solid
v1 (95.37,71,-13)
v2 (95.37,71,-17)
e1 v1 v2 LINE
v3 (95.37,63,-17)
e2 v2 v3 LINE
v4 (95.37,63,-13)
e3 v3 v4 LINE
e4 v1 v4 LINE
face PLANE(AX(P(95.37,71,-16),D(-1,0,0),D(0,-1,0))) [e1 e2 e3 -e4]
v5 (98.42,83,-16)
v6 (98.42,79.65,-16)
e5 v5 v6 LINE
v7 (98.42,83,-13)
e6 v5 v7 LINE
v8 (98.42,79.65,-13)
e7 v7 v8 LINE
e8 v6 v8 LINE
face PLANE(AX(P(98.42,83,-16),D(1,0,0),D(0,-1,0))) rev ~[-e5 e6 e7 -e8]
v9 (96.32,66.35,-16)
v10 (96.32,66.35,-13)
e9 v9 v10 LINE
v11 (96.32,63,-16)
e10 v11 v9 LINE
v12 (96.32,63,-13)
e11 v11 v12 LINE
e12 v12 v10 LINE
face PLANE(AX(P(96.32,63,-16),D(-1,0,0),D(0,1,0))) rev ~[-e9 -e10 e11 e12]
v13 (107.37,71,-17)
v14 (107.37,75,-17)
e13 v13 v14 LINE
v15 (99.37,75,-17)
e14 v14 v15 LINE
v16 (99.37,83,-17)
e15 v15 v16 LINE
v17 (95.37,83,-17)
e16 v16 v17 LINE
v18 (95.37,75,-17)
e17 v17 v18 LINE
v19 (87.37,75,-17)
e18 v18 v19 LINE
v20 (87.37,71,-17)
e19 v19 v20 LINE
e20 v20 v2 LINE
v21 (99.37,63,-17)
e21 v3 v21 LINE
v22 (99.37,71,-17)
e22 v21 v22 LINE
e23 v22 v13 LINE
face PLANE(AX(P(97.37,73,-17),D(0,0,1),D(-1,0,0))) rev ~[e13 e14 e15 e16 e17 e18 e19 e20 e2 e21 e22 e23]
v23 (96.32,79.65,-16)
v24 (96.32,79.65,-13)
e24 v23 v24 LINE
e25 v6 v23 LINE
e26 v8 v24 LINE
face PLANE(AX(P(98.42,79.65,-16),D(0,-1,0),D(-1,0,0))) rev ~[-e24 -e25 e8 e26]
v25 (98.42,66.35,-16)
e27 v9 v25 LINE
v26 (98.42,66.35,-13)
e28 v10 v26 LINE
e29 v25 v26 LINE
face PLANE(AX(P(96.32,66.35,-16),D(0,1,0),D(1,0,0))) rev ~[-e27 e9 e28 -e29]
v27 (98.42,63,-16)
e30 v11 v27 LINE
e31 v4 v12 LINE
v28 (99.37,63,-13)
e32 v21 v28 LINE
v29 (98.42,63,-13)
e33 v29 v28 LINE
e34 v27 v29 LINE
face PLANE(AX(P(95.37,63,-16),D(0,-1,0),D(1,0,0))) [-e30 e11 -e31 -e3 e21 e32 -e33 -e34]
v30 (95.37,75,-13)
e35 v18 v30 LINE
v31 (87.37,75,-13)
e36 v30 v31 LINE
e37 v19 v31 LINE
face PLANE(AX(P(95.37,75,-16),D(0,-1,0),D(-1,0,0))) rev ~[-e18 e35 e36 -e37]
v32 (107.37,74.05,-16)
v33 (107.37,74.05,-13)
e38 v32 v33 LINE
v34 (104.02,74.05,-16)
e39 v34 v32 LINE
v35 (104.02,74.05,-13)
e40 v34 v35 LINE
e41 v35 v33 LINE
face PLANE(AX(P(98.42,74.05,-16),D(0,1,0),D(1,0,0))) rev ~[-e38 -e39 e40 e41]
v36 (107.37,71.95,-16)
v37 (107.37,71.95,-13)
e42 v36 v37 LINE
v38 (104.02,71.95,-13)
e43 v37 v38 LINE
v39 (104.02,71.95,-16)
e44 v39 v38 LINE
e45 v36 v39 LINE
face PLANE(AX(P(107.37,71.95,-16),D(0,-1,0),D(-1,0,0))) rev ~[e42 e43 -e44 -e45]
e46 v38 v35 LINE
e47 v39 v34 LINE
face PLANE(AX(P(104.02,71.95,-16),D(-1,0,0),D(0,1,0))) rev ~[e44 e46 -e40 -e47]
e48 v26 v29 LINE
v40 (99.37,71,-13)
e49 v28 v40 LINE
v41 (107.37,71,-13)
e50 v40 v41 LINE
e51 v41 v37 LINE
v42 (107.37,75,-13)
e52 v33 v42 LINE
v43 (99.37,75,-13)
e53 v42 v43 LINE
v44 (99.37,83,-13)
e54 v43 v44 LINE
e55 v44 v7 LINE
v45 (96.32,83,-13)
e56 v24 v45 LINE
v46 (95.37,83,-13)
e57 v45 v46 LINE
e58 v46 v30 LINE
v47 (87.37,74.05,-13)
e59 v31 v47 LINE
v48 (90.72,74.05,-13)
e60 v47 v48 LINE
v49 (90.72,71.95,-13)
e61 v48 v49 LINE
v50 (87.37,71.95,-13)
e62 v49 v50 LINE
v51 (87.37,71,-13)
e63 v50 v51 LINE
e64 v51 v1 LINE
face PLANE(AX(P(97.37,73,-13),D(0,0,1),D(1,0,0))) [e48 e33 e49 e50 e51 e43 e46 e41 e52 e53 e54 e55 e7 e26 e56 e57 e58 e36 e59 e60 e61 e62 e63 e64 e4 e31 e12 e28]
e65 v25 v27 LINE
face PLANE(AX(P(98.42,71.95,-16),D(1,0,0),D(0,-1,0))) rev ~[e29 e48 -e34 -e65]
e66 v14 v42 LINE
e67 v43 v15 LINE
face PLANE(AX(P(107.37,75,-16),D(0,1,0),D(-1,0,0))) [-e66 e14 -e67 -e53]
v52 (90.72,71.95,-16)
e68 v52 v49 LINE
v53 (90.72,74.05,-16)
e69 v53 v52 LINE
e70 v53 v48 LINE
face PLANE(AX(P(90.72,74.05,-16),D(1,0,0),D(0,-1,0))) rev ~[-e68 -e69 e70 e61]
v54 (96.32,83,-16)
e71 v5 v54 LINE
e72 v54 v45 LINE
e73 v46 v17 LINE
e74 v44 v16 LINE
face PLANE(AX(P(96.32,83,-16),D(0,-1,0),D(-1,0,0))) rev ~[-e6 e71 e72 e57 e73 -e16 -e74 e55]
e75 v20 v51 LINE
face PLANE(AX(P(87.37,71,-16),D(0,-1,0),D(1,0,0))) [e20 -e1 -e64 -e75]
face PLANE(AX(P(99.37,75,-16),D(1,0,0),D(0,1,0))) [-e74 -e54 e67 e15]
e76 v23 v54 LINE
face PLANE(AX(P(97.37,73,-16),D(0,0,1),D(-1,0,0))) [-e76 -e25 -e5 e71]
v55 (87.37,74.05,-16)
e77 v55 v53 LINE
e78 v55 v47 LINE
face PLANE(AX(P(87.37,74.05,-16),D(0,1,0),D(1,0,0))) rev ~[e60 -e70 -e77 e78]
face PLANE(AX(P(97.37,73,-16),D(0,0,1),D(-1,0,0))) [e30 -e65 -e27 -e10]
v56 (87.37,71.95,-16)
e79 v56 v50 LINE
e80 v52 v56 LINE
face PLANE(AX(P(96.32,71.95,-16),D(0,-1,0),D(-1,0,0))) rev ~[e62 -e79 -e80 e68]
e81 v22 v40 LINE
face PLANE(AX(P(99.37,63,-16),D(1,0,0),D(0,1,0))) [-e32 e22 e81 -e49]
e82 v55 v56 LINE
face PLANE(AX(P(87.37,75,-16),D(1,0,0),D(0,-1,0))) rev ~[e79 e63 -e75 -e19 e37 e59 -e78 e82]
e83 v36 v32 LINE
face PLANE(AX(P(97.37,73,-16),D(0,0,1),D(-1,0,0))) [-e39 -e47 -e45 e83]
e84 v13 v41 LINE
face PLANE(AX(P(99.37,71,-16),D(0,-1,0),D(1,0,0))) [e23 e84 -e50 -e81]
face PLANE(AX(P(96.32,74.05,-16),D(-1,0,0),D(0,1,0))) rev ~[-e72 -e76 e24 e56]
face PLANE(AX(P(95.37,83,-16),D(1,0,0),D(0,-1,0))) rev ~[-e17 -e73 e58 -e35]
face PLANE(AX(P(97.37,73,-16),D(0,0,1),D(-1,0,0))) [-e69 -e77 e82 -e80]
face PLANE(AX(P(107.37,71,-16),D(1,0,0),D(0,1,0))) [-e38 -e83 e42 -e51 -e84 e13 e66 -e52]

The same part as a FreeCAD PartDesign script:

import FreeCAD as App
import Part
import Sketcher

V = App.Vector
Q = App.Units.Quantity

doc = App.newDocument("Part")
body = doc.addObject("PartDesign::Body", "Body")

sketch1 = doc.addObject("Sketcher::SketchObject", "Sketch")
body.addObject(sketch1)
sketch1.AttachmentSupport = (doc.XY_Plane, [""])
sketch1.MapMode = "FlatFace"
sketch1.AttachmentOffset = App.Placement(V(0, 0, -28), App.Rotation())
sketch1.addGeometry([
    Part.LineSegment(V(-2, 10, 0), V(-2, 2, 0)),
    Part.LineSegment(V(-2, 2, 0), V(-10, 2, 0)),
    Part.LineSegment(V(-10, 2, 0), V(-10, -2, 0)),
    Part.LineSegment(V(-10, -2, 0), V(-2, -2, 0)),
    Part.LineSegment(V(-2, -2, 0), V(-2, -10, 0)),
    Part.LineSegment(V(-2, -10, 0), V(2, -10, 0)),
    Part.LineSegment(V(2, -10, 0), V(2, -2, 0)),
    Part.LineSegment(V(2, -2, 0), V(10, -2, 0)),
    Part.LineSegment(V(10, -2, 0), V(10, 2, 0)),
    Part.LineSegment(V(10, 2, 0), V(2, 2, 0)),
    Part.LineSegment(V(2, 2, 0), V(2, 10, 0)),
    Part.LineSegment(V(2, 10, 0), V(-2, 10, 0)),
], False)
sketch1.addConstraint([
    Sketcher.Constraint("Coincident", 0, 2, 1, 1),
    Sketcher.Constraint("Coincident", 1, 2, 2, 1),
    Sketcher.Constraint("Coincident", 2, 2, 3, 1),
    Sketcher.Constraint("Coincident", 3, 2, 4, 1),
    Sketcher.Constraint("Coincident", 4, 2, 5, 1),
    Sketcher.Constraint("Coincident", 5, 2, 6, 1),
    Sketcher.Constraint("Coincident", 6, 2, 7, 1),
    Sketcher.Constraint("Coincident", 7, 2, 8, 1),
    Sketcher.Constraint("Coincident", 8, 2, 9, 1),
    Sketcher.Constraint("Coincident", 9, 2, 10, 1),
    Sketcher.Constraint("Coincident", 10, 2, 11, 1),
    Sketcher.Constraint("Coincident", 11, 2, 0, 1),
    Sketcher.Constraint("Vertical", 0),
    Sketcher.Constraint("Horizontal", 1),
    Sketcher.Constraint("Vertical", 2),
    Sketcher.Constraint("Horizontal", 3),
    Sketcher.Constraint("Vertical", 4),
    Sketcher.Constraint("Horizontal", 5),
    Sketcher.Constraint("Vertical", 6),
    Sketcher.Constraint("Horizontal", 7),
    Sketcher.Constraint("Vertical", 8),
    Sketcher.Constraint("Horizontal", 9),
    Sketcher.Constraint("Vertical", 10),
    Sketcher.Constraint("Horizontal", 11),
    Sketcher.Constraint("Symmetric", 0, 2, 6, 2, -1, 1),
    Sketcher.Constraint("Symmetric", 2, 2, 8, 2, -1, 1),
    Sketcher.Constraint("Symmetric", 4, 2, 10, 2, -1, 1),
    Sketcher.Constraint("Symmetric", 3, 2, 6, 2, -2),
    Sketcher.Constraint("Equal", 9, 0),
    Sketcher.Constraint("Equal", 11, 2),
    Sketcher.Constraint("DistanceX", 1, 2, 1, 1, Q("8 mm")),
    Sketcher.Constraint("DistanceX", 5, 1, 5, 2, Q("4 mm")),
])
pad1 = doc.addObject("PartDesign::Pad", "Pad")
body.addObject(pad1)
pad1.Profile = sketch1
pad1.Length = 1

sketch2 = doc.addObject("Sketcher::SketchObject", "Sketch001")
body.addObject(sketch2)
sketch2.AttachmentSupport = (doc.XY_Plane, [""])
sketch2.MapMode = "FlatFace"
sketch2.AttachmentOffset = App.Placement(V(0, 0, -28), App.Rotation())
sketch2.addGeometry([
    Part.LineSegment(V(-2, -10, 0), V(-2, -2, 0)),
    Part.LineSegment(V(-2, -2, 0), V(-10, -2, 0)),
    Part.LineSegment(V(-10, -2, 0), V(-10, -1.1, 0)),
    Part.LineSegment(V(-10, -1.1, 0), V(-1.1, -1.1, 0)),
    Part.LineSegment(V(-1.1, -1.1, 0), V(-1.1, -10, 0)),
    Part.LineSegment(V(-1.1, -10, 0), V(-2, -10, 0)),
    Part.LineSegment(V(-10, 2, 0), V(-2, 2, 0)),
    Part.LineSegment(V(-2, 2, 0), V(-2, 10, 0)),
    Part.LineSegment(V(-2, 10, 0), V(-1.1, 10, 0)),
    Part.LineSegment(V(-1.1, 10, 0), V(-1.1, 1.1, 0)),
    Part.LineSegment(V(-1.1, 1.1, 0), V(-10, 1.1, 0)),
    Part.LineSegment(V(-10, 1.1, 0), V(-10, 2, 0)),
    Part.LineSegment(V(2, 10, 0), V(2, 2, 0)),
    Part.LineSegment(V(2, 2, 0), V(10, 2, 0)),
    Part.LineSegment(V(10, 2, 0), V(10, 1.1, 0)),
    Part.LineSegment(V(10, 1.1, 0), V(1.1, 1.1, 0)),
    Part.LineSegment(V(1.1, 1.1, 0), V(1.1, 10, 0)),
    Part.LineSegment(V(1.1, 10, 0), V(2, 10, 0)),
    Part.LineSegment(V(10, -2, 0), V(2, -2, 0)),
    Part.LineSegment(V(2, -2, 0), V(2, -10, 0)),
    Part.LineSegment(V(2, -10, 0), V(1.1, -10, 0)),
    Part.LineSegment(V(1.1, -10, 0), V(1.1, -1.1, 0)),
    Part.LineSegment(V(1.1, -1.1, 0), V(10, -1.1, 0)),
    Part.LineSegment(V(10, -1.1, 0), V(10, -2, 0)),
], False)
sketch2.addConstraint([
    Sketcher.Constraint("Coincident", 0, 2, 1, 1),
    Sketcher.Constraint("Coincident", 1, 2, 2, 1),
    Sketcher.Constraint("Coincident", 2, 2, 3, 1),
    Sketcher.Constraint("Coincident", 3, 2, 4, 1),
    Sketcher.Constraint("Coincident", 4, 2, 5, 1),
    Sketcher.Constraint("Coincident", 5, 2, 0, 1),
    Sketcher.Constraint("Coincident", 6, 2, 7, 1),
    Sketcher.Constraint("Coincident", 7, 2, 8, 1),
    Sketcher.Constraint("Coincident", 8, 2, 9, 1),
    Sketcher.Constraint("Coincident", 9, 2, 10, 1),
    Sketcher.Constraint("Coincident", 10, 2, 11, 1),
    Sketcher.Constraint("Coincident", 11, 2, 6, 1),
    Sketcher.Constraint("Coincident", 12, 2, 13, 1),
    Sketcher.Constraint("Coincident", 13, 2, 14, 1),
    Sketcher.Constraint("Coincident", 14, 2, 15, 1),
    Sketcher.Constraint("Coincident", 15, 2, 16, 1),
    Sketcher.Constraint("Coincident", 16, 2, 17, 1),
    Sketcher.Constraint("Coincident", 17, 2, 12, 1),
    Sketcher.Constraint("Coincident", 18, 2, 19, 1),
    Sketcher.Constraint("Coincident", 19, 2, 20, 1),
    Sketcher.Constraint("Coincident", 20, 2, 21, 1),
    Sketcher.Constraint("Coincident", 21, 2, 22, 1),
    Sketcher.Constraint("Coincident", 22, 2, 23, 1),
    Sketcher.Constraint("Coincident", 23, 2, 18, 1),
    Sketcher.Constraint("Vertical", 0),
    Sketcher.Constraint("Horizontal", 1),
    Sketcher.Constraint("Vertical", 2),
    Sketcher.Constraint("Horizontal", 3),
    Sketcher.Constraint("Vertical", 4),
    Sketcher.Constraint("Horizontal", 5),
    Sketcher.Constraint("Horizontal", 6),
    Sketcher.Constraint("Vertical", 7),
    Sketcher.Constraint("Horizontal", 8),
    Sketcher.Constraint("Vertical", 9),
    Sketcher.Constraint("Horizontal", 10),
    Sketcher.Constraint("Vertical", 11),
    Sketcher.Constraint("Vertical", 12),
    Sketcher.Constraint("Horizontal", 13),
    Sketcher.Constraint("Vertical", 14),
    Sketcher.Constraint("Horizontal", 15),
    Sketcher.Constraint("Vertical", 16),
    Sketcher.Constraint("Horizontal", 17),
    Sketcher.Constraint("Horizontal", 18),
    Sketcher.Constraint("Vertical", 19),
    Sketcher.Constraint("Horizontal", 20),
    Sketcher.Constraint("Vertical", 21),
    Sketcher.Constraint("Horizontal", 22),
    Sketcher.Constraint("Vertical", 23),
    Sketcher.Constraint("Symmetric", 0, 2, 12, 2, -1, 1),
    Sketcher.Constraint("Symmetric", 2, 2, 14, 2, -1, 1),
    Sketcher.Constraint("Symmetric", 4, 2, 16, 2, -1, 1),
    Sketcher.Constraint("Symmetric", 6, 2, 18, 2, -1, 1),
    Sketcher.Constraint("Symmetric", 8, 2, 20, 2, -1, 1),
    Sketcher.Constraint("Symmetric", 10, 2, 22, 2, -1, 1),
    Sketcher.Constraint("Symmetric", 6, 2, 12, 2, -2),
    Sketcher.Constraint("Symmetric", 10, 2, 14, 2, -2),
    Sketcher.Constraint("Symmetric", 8, 2, 16, 2, -2),
    Sketcher.Constraint("Equal", 18, 0),
    Sketcher.Constraint("Equal", 20, 2),
    Sketcher.Constraint("DistanceX", 1, 2, 1, 1, Q("8 mm")),
    Sketcher.Constraint("DistanceX", 0, 2, -1, 1, Q("2 mm")),
    Sketcher.Constraint("DistanceY", 0, 2, -1, 1, Q("2 mm")),
    Sketcher.Constraint("DistanceX", 3, 1, 3, 2, Q("8.95 mm")),
])
pad2 = doc.addObject("PartDesign::Pad", "Pad001")
body.addObject(pad2)
pad2.Profile = sketch2
pad2.Length = 3
pad2.Reversed = True

sketch3 = doc.addObject("Sketcher::SketchObject", "Sketch002")
body.addObject(sketch3)
sketch3.AttachmentSupport = (doc.XY_Plane, [""])
sketch3.MapMode = "FlatFace"
sketch3.AttachmentOffset = App.Placement(V(0, 0, -28), App.Rotation())
sketch3.addGeometry([
    Part.LineSegment(V(-6.7, -1.1, 0), V(-6.7, 1.1, 0)),
    Part.LineSegment(V(-6.7, 1.1, 0), V(-1.1, 1.1, 0)),
    Part.LineSegment(V(-1.1, 1.1, 0), V(-1.1, 6.7, 0)),
    Part.LineSegment(V(-1.1, 6.7, 0), V(1.1, 6.7, 0)),
    Part.LineSegment(V(1.1, 6.7, 0), V(1.1, 1.1, 0)),
    Part.LineSegment(V(1.1, 1.1, 0), V(6.7, 1.1, 0)),
    Part.LineSegment(V(6.7, 1.1, 0), V(6.7, -1.1, 0)),
    Part.LineSegment(V(6.7, -1.1, 0), V(1.1, -1.1, 0)),
    Part.LineSegment(V(1.1, -1.1, 0), V(1.1, -6.7, 0)),
    Part.LineSegment(V(1.1, -6.7, 0), V(-1.1, -6.7, 0)),
    Part.LineSegment(V(-1.1, -6.7, 0), V(-1.1, -1.1, 0)),
    Part.LineSegment(V(-1.1, -1.1, 0), V(-6.7, -1.1, 0)),
], False)
sketch3.addConstraint([
    Sketcher.Constraint("Coincident", 0, 2, 1, 1),
    Sketcher.Constraint("Coincident", 1, 2, 2, 1),
    Sketcher.Constraint("Coincident", 2, 2, 3, 1),
    Sketcher.Constraint("Coincident", 3, 2, 4, 1),
    Sketcher.Constraint("Coincident", 4, 2, 5, 1),
    Sketcher.Constraint("Coincident", 5, 2, 6, 1),
    Sketcher.Constraint("Coincident", 6, 2, 7, 1),
    Sketcher.Constraint("Coincident", 7, 2, 8, 1),
    Sketcher.Constraint("Coincident", 8, 2, 9, 1),
    Sketcher.Constraint("Coincident", 9, 2, 10, 1),
    Sketcher.Constraint("Coincident", 10, 2, 11, 1),
    Sketcher.Constraint("Coincident", 11, 2, 0, 1),
    Sketcher.Constraint("Vertical", 0),
    Sketcher.Constraint("Horizontal", 1),
    Sketcher.Constraint("Vertical", 2),
    Sketcher.Constraint("Horizontal", 3),
    Sketcher.Constraint("Vertical", 4),
    Sketcher.Constraint("Horizontal", 5),
    Sketcher.Constraint("Vertical", 6),
    Sketcher.Constraint("Horizontal", 7),
    Sketcher.Constraint("Vertical", 8),
    Sketcher.Constraint("Horizontal", 9),
    Sketcher.Constraint("Vertical", 10),
    Sketcher.Constraint("Horizontal", 11),
    Sketcher.Constraint("Symmetric", 0, 2, 6, 2, -1, 1),
    Sketcher.Constraint("Symmetric", 2, 2, 8, 2, -1, 1),
    Sketcher.Constraint("Symmetric", 4, 2, 10, 2, -1, 1),
    Sketcher.Constraint("Symmetric", 1, 2, 4, 2, -2),
    Sketcher.Constraint("Equal", 9, 0),
    Sketcher.Constraint("Equal", 11, 2),
    Sketcher.Constraint("DistanceX", 1, 1, 1, 2, Q("5.6 mm")),
    Sketcher.Constraint("DistanceX", 3, 1, 3, 2, Q("2.1 mm")),
])
pad3 = doc.addObject("PartDesign::Pad", "Pad002")
body.addObject(pad3)
pad3.Profile = sketch3
pad3.Length = 3
pad3.Reversed = True
body2 = doc.addObject("PartDesign::Body", "Body001")
doc.recompute()

body.Placement = App.Placement(V(97.37, 73, -44), App.Rotation(V(1, 0, 0), 180))
boolean = doc.addObject("PartDesign::Boolean", "Boolean")
body2.addObject(boolean)
boolean.Type = "Fuse"
boolean.addObjects([body])

doc.recompute()
